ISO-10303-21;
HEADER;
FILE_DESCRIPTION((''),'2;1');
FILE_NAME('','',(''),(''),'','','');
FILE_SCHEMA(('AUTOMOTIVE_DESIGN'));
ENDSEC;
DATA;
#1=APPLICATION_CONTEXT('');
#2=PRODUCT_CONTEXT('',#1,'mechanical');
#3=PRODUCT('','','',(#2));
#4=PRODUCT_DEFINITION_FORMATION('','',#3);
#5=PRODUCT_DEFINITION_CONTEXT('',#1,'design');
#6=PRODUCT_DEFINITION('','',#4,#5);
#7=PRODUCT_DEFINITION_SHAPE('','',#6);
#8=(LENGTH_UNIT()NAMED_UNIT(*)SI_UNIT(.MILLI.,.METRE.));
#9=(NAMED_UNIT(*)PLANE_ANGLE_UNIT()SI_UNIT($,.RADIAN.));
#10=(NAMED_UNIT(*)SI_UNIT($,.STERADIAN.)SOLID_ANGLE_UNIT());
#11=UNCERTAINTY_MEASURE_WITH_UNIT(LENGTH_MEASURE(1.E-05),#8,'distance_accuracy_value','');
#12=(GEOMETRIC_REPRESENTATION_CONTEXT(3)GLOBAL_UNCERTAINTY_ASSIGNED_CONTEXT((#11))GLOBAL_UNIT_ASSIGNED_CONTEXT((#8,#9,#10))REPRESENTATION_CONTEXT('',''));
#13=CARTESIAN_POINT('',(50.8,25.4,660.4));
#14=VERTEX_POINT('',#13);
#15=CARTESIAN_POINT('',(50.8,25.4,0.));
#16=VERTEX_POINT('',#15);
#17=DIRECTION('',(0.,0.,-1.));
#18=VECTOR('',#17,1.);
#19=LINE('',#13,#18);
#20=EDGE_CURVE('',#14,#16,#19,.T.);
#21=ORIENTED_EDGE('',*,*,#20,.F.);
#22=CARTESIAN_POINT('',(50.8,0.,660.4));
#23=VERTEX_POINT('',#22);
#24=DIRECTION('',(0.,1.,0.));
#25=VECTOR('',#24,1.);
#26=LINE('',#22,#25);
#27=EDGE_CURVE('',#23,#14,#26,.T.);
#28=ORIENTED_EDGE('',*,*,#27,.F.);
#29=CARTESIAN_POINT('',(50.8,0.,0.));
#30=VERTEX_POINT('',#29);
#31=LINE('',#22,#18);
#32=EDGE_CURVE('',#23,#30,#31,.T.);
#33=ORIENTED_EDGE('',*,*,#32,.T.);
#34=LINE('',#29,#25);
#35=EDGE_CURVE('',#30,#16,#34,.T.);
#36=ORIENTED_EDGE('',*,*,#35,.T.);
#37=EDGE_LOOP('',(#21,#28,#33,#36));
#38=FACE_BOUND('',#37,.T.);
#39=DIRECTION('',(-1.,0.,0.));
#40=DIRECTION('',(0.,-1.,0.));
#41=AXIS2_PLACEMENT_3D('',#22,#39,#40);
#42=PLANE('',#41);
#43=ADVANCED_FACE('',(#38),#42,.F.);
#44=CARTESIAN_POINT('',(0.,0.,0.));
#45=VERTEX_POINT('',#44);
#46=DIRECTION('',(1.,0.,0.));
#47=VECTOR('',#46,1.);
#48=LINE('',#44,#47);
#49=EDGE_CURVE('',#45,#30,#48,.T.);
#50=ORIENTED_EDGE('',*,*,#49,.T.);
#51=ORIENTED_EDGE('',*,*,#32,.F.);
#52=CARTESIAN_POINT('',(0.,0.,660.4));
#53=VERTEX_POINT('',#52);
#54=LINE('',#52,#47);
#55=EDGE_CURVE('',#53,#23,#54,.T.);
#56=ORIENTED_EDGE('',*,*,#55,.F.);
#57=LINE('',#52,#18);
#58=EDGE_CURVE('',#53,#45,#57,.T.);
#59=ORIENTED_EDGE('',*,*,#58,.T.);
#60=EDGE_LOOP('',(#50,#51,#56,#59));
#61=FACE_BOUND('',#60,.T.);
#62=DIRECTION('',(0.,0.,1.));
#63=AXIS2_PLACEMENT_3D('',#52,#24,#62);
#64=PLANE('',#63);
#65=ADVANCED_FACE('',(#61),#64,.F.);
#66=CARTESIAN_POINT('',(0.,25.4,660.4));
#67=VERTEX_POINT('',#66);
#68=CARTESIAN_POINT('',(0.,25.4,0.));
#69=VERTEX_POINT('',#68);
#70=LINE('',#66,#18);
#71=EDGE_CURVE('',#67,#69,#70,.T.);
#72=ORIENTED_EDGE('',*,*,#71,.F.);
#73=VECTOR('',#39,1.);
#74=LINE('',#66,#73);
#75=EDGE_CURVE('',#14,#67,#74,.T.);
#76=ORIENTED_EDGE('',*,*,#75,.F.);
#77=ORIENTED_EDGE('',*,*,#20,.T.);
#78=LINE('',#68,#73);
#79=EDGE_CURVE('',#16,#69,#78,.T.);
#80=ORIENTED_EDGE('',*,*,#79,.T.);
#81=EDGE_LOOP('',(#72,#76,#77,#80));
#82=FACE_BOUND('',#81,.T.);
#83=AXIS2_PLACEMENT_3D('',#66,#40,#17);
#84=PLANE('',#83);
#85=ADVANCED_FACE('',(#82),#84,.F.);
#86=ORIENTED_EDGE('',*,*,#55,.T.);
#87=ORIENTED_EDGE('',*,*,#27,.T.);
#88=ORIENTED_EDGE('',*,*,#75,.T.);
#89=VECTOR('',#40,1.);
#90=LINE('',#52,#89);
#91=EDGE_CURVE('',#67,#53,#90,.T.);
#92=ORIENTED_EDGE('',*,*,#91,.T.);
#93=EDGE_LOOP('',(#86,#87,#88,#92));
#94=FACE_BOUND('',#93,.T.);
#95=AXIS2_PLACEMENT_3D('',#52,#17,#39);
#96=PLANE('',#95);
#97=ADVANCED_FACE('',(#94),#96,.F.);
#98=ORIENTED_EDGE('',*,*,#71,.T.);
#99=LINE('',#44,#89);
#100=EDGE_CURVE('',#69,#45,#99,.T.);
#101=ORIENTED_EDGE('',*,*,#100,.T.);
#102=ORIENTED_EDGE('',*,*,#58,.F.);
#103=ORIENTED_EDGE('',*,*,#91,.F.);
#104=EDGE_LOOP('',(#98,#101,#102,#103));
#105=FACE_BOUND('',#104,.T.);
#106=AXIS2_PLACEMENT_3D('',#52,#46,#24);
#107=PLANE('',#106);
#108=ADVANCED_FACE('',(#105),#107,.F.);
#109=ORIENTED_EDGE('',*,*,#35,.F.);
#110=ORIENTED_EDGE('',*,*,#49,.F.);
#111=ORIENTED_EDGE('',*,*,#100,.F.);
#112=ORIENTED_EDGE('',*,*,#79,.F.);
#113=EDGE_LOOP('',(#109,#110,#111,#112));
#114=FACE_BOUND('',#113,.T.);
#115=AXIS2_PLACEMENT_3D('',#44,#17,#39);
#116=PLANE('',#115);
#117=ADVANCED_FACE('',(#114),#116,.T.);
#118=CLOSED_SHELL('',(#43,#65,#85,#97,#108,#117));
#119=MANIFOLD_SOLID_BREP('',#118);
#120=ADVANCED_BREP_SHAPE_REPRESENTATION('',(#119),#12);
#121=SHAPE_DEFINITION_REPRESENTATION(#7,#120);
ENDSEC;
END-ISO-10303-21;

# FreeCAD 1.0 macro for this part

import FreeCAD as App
import Part
import Sketcher
Q = App.Units.Quantity

doc = App.newDocument("Part")
params = doc.addObject("Spreadsheet::Sheet", "Params")
for row, (alias, value) in enumerate([
    ("sketch1_width", "2 in"),
    ("sketch1_height", "1 in"),
    ("pad1_length", "26 in"),
], start=1):
    params.set(f"A{row}", alias)
    params.set(f"B{row}", "=" + value)
    params.setAlias(f"B{row}", alias)

body = doc.addObject("PartDesign::Body", "Body")

sketch1 = doc.addObject("Sketcher::SketchObject", "Sketch")
body.addObject(sketch1)
sketch1.AttachmentSupport = (doc.XY_Plane, [""])
sketch1.MapMode = "FlatFace"
sketch1.addGeometry([
    Part.LineSegment(App.Vector(0, 25, 0), App.Vector(0, 0, 0)),
    Part.LineSegment(App.Vector(0, 0, 0), App.Vector(51, 0, 0)),
    Part.LineSegment(App.Vector(51, 0, 0), App.Vector(51, 25, 0)),
    Part.LineSegment(App.Vector(51, 25, 0), App.Vector(0, 25, 0)),
], False)
sketch1.addConstraint([
    Sketcher.Constraint("Coincident", 0, 2, 1, 1),
    Sketcher.Constraint("Coincident", 1, 2, 2, 1),
    Sketcher.Constraint("Coincident", 2, 2, 3, 1),
    Sketcher.Constraint("Coincident", 3, 2, 0, 1),
    Sketcher.Constraint("Vertical", 0),
    Sketcher.Constraint("Horizontal", 1),
    Sketcher.Constraint("Vertical", 2),
    Sketcher.Constraint("Horizontal", 3),
    Sketcher.Constraint("Coincident", 0, 2, -1, 1),
    Sketcher.Constraint("DistanceX", 1, 1, 1, 2, Q("2 in")),
    Sketcher.Constraint("DistanceY", 0, 2, 0, 1, Q("1 in")),
])
sketch1.setExpression("Constraints[9]", "Params.sketch1_width")
sketch1.setExpression("Constraints[10]", "Params.sketch1_height")
pad1 = doc.addObject("PartDesign::Pad", "Pad")
body.addObject(pad1)
pad1.Profile = sketch1
pad1.setExpression("Length", "Params.pad1_length")

doc.recompute()
